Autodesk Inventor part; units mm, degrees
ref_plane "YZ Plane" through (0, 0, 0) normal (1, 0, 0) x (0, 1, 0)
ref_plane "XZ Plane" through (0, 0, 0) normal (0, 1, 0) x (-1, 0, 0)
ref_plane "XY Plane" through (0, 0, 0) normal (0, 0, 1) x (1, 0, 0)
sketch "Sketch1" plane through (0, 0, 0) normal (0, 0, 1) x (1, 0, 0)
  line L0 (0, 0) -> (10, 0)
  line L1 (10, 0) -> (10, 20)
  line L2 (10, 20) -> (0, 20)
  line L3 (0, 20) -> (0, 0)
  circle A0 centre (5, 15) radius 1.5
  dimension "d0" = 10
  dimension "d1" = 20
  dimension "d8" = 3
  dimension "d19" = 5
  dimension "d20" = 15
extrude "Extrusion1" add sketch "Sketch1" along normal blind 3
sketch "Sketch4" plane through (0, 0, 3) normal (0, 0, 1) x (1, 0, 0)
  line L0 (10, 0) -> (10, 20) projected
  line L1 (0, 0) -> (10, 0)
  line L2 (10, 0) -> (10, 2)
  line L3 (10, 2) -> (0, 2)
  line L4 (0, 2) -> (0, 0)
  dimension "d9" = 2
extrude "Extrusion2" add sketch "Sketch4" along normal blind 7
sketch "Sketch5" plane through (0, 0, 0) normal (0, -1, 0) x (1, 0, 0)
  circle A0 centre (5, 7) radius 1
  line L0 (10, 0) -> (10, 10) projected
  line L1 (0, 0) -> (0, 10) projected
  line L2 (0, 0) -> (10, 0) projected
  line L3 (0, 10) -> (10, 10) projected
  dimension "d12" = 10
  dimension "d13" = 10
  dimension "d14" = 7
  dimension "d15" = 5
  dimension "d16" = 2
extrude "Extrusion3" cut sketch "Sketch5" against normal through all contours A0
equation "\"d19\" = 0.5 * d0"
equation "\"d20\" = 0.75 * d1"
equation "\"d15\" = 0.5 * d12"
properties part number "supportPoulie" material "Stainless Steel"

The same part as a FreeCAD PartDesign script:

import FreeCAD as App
import Part
import Sketcher
Q = App.Units.Quantity

doc = App.newDocument("Part")
body = doc.addObject("PartDesign::Body", "Body")

sketch1 = body.newObject("Sketcher::SketchObject", "Sketch")
sketch1.AttachmentSupport = (doc.getObject("XY_Plane"), [""])
sketch1.MapMode = "FlatFace"
sketch1.addGeometry([
    Part.LineSegment(App.Vector(0, 20, 0), App.Vector(0, 0, 0)),
    Part.LineSegment(App.Vector(0, 0, 0), App.Vector(10, 0, 0)),
    Part.LineSegment(App.Vector(10, 0, 0), App.Vector(10, 20, 0)),
    Part.LineSegment(App.Vector(10, 20, 0), App.Vector(0, 20, 0)),
    Part.Circle(App.Vector(5, 15, 0), App.Vector(0, 0, 1), 1.5),
], False)
sketch1.addConstraint([
    Sketcher.Constraint("Coincident", 0, 2, 1, 1),
    Sketcher.Constraint("Coincident", 1, 2, 2, 1),
    Sketcher.Constraint("Coincident", 2, 2, 3, 1),
    Sketcher.Constraint("Coincident", 3, 2, 0, 1),
    Sketcher.Constraint("Vertical", 0),
    Sketcher.Constraint("Horizontal", 1),
    Sketcher.Constraint("Vertical", 2),
    Sketcher.Constraint("Horizontal", 3),
    Sketcher.Constraint("Coincident", 0, 2, -1, 1),
    Sketcher.Constraint("Diameter", 4, Q("3 mm")),
    Sketcher.Constraint("DistanceX", 1, 1, 1, 2, Q("10 mm")),
    Sketcher.Constraint("DistanceY", 0, 2, 0, 1, Q("20 mm")),
    Sketcher.Constraint("DistanceX", -1, 1, 4, 3, Q("5 mm")),
    Sketcher.Constraint("DistanceY", -1, 1, 4, 3, Q("15 mm")),
])
pad1 = body.newObject("PartDesign::Pad", "Pad")
pad1.Profile = sketch1
pad1.Length = 3

sketch2 = body.newObject("Sketcher::SketchObject", "Sketch001")
sketch2.AttachmentSupport = (doc.getObject("XY_Plane"), [""])
sketch2.MapMode = "FlatFace"
sketch2.AttachmentOffset = App.Placement(App.Vector(0, 0, 3), App.Rotation())
sketch2.addGeometry([
    Part.LineSegment(App.Vector(0, 0, 0), App.Vector(10, 0, 0)),
    Part.LineSegment(App.Vector(10, 0, 0), App.Vector(10, 2, 0)),
    Part.LineSegment(App.Vector(10, 2, 0), App.Vector(0, 2, 0)),
    Part.LineSegment(App.Vector(0, 2, 0), App.Vector(0, 0, 0)),
], False)
sketch2.addConstraint([
    Sketcher.Constraint("Coincident", 0, 2, 1, 1),
    Sketcher.Constraint("Coincident", 1, 2, 2, 1),
    Sketcher.Constraint("Coincident", 2, 2, 3, 1),
    Sketcher.Constraint("Coincident", 3, 2, 0, 1),
    Sketcher.Constraint("Horizontal", 0),
    Sketcher.Constraint("Vertical", 1),
    Sketcher.Constraint("Horizontal", 2),
    Sketcher.Constraint("Vertical", 3),
    Sketcher.Constraint("Coincident", 3, 2, -1, 1),
    Sketcher.Constraint("DistanceY", 1, 1, 1, 2, Q("2 mm")),
    Sketcher.Constraint("DistanceX", 0, 1, 0, 2, Q("10 mm")),
])
pad2 = body.newObject("PartDesign::Pad", "Pad001")
pad2.Profile = sketch2
pad2.Length = 7

sketch3 = body.newObject("Sketcher::SketchObject", "Sketch002")
sketch3.AttachmentSupport = (doc.getObject("XZ_Plane"), [""])
sketch3.MapMode = "FlatFace"
sketch3.addGeometry(Part.Circle(App.Vector(5, 7, 0), App.Vector(0, 0, 1), 1), False)
sketch3.addConstraint([
    Sketcher.Constraint("Diameter", 0, Q("2 mm")),
    Sketcher.Constraint("DistanceX", -1, 1, 0, 3, Q("5 mm")),
    Sketcher.Constraint("DistanceY", -1, 1, 0, 3, Q("7 mm")),
])
pocket1 = body.newObject("PartDesign::Pocket", "Pocket")
pocket1.Profile = sketch3
pocket1.Type = "ThroughAll"

doc.recompute()
